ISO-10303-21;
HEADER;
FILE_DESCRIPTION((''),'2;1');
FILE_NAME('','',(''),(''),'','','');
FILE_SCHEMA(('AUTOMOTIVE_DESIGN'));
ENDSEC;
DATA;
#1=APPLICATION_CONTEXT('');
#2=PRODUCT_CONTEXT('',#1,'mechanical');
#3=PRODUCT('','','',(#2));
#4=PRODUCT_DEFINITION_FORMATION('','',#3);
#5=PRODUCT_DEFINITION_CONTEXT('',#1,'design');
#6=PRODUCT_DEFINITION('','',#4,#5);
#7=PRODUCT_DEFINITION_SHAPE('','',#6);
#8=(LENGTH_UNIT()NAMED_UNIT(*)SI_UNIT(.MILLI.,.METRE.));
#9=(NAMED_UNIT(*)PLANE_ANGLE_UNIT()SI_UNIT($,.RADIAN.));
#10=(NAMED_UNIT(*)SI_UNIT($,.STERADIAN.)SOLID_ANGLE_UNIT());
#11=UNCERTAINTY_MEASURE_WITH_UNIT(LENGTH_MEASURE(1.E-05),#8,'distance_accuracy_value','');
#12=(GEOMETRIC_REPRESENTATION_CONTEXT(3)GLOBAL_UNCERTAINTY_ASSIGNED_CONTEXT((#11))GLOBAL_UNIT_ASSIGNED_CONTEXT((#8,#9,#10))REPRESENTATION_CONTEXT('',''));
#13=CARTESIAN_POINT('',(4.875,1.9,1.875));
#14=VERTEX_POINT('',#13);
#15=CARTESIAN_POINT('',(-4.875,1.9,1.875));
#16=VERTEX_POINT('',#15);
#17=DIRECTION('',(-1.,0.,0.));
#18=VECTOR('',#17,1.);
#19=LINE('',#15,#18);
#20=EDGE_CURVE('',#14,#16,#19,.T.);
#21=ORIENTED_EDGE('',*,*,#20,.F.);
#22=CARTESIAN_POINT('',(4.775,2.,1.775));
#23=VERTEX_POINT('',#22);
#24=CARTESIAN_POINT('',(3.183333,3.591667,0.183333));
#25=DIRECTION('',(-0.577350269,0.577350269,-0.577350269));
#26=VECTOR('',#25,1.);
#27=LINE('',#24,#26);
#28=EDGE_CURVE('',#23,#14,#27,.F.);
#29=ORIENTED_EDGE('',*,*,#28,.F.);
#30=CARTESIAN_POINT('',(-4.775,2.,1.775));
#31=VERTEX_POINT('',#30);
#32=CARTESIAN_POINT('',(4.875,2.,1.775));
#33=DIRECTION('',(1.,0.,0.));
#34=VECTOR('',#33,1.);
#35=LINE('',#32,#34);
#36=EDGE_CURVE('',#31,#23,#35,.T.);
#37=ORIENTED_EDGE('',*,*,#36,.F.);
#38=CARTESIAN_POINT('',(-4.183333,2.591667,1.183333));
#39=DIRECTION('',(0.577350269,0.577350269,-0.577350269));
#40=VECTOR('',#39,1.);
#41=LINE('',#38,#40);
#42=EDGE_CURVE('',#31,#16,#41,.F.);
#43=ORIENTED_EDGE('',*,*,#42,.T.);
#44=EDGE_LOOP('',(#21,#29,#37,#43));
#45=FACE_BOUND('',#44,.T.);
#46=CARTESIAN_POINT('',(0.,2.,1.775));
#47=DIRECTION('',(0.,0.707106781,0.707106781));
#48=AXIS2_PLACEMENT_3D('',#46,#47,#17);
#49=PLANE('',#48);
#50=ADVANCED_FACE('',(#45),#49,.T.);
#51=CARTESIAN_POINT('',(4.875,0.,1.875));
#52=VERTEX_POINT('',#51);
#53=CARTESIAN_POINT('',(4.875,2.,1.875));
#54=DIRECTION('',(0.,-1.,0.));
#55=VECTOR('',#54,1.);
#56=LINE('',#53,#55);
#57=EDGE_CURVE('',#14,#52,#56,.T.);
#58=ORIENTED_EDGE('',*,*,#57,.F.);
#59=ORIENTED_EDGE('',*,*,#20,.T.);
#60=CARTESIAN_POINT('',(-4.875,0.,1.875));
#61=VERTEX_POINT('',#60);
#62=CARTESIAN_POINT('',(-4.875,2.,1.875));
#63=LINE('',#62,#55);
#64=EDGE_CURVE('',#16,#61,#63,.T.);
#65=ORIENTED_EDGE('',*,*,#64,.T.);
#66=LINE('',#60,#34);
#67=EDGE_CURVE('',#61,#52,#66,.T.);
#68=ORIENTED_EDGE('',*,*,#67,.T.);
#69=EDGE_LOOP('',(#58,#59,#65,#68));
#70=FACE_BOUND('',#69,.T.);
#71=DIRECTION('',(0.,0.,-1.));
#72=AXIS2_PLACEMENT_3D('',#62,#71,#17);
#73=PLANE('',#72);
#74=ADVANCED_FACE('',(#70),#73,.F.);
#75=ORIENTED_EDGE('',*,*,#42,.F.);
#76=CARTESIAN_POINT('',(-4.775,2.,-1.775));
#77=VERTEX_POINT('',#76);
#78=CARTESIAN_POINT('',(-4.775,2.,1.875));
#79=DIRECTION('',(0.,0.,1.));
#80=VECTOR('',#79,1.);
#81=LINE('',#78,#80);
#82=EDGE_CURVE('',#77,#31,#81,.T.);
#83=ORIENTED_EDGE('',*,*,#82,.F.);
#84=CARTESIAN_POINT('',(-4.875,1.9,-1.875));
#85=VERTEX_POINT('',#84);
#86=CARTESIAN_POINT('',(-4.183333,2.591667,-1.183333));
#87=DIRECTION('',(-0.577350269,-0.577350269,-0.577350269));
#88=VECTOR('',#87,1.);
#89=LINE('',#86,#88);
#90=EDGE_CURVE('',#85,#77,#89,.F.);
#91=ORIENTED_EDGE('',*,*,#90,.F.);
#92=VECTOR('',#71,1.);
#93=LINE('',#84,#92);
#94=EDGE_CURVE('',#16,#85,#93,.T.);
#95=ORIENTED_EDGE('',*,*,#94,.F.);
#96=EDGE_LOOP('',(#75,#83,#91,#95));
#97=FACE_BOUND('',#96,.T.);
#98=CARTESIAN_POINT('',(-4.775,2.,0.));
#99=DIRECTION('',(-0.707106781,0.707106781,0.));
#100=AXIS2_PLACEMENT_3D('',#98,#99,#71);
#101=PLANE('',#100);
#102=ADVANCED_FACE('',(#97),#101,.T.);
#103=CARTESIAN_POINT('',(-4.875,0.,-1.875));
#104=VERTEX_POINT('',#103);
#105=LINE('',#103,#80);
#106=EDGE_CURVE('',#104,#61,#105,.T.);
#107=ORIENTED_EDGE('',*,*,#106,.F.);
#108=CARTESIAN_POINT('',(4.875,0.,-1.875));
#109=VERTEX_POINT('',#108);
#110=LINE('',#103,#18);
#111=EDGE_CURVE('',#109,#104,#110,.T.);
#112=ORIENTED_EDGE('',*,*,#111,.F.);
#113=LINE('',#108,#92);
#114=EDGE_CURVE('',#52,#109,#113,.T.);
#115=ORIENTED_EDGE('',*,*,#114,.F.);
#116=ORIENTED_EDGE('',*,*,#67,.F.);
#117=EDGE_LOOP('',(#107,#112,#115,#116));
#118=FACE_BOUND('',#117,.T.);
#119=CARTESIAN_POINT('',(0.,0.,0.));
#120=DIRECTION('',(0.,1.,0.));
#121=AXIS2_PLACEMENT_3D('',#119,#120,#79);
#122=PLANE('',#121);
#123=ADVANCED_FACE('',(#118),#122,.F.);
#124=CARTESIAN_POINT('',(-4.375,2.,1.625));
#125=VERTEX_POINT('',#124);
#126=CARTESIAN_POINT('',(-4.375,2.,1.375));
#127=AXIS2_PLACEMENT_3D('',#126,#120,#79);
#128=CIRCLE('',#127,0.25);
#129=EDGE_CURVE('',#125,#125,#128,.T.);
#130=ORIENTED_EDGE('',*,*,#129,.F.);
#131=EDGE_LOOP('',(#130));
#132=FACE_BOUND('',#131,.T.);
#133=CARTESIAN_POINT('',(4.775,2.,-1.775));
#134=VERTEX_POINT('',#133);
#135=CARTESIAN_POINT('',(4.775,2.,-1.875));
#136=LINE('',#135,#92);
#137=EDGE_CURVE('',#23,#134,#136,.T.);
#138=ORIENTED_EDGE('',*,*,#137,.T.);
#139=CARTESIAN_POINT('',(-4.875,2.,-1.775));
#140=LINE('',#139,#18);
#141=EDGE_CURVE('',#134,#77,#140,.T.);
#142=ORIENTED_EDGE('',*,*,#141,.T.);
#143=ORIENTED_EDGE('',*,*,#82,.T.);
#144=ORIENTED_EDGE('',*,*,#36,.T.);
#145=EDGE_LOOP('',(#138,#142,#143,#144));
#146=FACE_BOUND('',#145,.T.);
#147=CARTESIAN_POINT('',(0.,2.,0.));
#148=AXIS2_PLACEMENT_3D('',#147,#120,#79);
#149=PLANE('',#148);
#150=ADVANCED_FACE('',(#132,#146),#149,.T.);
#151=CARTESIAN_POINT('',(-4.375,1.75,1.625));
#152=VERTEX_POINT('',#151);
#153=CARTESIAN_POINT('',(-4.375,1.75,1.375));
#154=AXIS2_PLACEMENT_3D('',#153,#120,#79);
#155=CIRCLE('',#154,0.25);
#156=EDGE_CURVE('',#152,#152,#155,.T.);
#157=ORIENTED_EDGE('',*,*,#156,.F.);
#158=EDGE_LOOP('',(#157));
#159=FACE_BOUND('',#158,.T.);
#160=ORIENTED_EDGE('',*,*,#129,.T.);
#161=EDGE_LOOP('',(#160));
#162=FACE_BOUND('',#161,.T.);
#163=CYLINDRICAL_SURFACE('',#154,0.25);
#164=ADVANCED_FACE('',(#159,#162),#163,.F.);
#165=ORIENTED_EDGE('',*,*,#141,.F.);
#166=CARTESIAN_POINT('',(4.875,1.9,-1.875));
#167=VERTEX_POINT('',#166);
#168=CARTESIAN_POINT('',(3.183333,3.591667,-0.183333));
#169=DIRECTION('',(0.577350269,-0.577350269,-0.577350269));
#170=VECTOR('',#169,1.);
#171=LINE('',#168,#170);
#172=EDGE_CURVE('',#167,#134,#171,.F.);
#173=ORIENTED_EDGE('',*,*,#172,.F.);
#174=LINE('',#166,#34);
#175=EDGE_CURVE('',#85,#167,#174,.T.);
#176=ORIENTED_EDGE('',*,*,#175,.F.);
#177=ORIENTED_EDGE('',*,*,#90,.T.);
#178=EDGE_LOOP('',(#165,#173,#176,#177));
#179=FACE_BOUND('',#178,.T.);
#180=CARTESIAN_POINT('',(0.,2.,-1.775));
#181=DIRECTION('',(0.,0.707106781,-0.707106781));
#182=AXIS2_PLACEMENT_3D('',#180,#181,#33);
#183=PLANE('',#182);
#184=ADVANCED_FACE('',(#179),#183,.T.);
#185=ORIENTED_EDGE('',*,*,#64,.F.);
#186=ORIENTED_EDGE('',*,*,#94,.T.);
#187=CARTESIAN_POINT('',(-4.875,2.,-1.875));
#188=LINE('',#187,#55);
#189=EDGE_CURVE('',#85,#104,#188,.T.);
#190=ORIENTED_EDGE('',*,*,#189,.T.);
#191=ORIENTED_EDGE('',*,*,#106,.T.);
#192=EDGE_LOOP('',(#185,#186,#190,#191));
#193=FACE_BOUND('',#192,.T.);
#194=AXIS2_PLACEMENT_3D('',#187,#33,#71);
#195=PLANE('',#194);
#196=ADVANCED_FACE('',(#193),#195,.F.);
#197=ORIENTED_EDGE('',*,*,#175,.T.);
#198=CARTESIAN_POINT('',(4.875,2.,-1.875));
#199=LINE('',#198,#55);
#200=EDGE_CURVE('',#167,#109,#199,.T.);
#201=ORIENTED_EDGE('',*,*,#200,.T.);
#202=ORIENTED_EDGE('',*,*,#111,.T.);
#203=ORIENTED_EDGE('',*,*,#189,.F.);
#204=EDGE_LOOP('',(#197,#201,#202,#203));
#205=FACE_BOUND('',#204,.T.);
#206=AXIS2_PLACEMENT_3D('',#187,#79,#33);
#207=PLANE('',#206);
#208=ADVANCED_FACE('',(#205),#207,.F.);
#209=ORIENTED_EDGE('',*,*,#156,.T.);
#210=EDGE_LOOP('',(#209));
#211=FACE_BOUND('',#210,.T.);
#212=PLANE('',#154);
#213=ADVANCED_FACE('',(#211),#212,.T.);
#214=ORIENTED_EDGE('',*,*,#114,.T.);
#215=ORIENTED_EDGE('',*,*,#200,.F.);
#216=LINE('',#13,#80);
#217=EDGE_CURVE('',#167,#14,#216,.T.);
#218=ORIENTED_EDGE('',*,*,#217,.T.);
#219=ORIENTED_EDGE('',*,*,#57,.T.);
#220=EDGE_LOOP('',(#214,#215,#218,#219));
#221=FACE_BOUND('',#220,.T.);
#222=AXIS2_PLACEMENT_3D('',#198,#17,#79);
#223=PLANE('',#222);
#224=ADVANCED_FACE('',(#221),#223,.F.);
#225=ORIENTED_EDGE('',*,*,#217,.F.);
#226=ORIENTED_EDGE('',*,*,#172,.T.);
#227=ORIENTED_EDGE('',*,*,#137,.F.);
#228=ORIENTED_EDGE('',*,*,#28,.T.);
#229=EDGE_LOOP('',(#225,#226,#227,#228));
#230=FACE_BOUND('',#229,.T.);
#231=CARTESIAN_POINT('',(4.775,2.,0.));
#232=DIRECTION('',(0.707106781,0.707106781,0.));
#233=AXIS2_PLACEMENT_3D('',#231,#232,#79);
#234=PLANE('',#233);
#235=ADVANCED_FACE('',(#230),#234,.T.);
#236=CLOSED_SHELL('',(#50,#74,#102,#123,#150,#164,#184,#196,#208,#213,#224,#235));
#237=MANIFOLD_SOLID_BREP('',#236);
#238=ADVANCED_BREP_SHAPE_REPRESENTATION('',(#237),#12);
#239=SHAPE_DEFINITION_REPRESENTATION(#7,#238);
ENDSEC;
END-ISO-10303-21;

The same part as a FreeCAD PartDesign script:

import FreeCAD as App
import Part
import Sketcher


def edges_at(feature, points):
    """Names of the edges that pass closest to the given points."""
    edges = feature.Shape.Edges
    near = lambda p: min(range(len(edges)), key=lambda i: edges[i].distToShape(Part.Vertex(*p))[0])
    return sorted({f"Edge{near(p) + 1}" for p in points})


def add_polygon(sketch, points):
    """Adds a closed chain of lines whose ends are joined by coincident constraints."""
    first, n = sketch.GeometryCount, len(points)
    for a, b in zip(points, points[1:] + points[:1]):
        sketch.addGeometry(Part.LineSegment(App.Vector(*a, 0), App.Vector(*b, 0)), False)
    for i in range(n):
        sketch.addConstraint(Sketcher.Constraint("Coincident", first + i, 2, first + (i + 1) % n, 1))

doc = App.newDocument("Part")
body = doc.addObject("PartDesign::Body", "Body")

# Sketch on XZ plane
sketch1 = doc.addObject("Sketcher::SketchObject", "Sketch")
body.addObject(sketch1)
sketch1.AttachmentSupport = (doc.XZ_Plane, [""])
sketch1.MapMode = "FlatFace"
add_polygon(sketch1, [(-4.9, -1.9), (-4.9, 1.9), (4.9, 1.9), (4.9, -1.9)])  # lines 0-3
sketch1.addConstraint(Sketcher.Constraint("Vertical", 0))
sketch1.addConstraint(Sketcher.Constraint("Horizontal", 1))
sketch1.addConstraint(Sketcher.Constraint("Vertical", 2))
sketch1.addConstraint(Sketcher.Constraint("Horizontal", 3))
sketch1.addConstraint(Sketcher.Constraint("Symmetric", 0, 2, 2, 2, -1, 1))
sketch1.addConstraint(Sketcher.Constraint("DistanceX", 1, 1, 1, 2, 9.75))
sketch1.addConstraint(Sketcher.Constraint("DistanceY", 0, 1, 0, 2, 3.75))
pad1 = doc.addObject("PartDesign::Pad", "Pad")
body.addObject(pad1)
pad1.Profile = sketch1
pad1.Length = 2
pad1.Reversed = True

# Sketch on XZ plane
sketch2 = doc.addObject("Sketcher::SketchObject", "Sketch001")
body.addObject(sketch2)
sketch2.AttachmentSupport = (doc.XZ_Plane, [""])
sketch2.MapMode = "FlatFace"
sketch2.AttachmentOffset = App.Placement(App.Vector(0, 0, -2), App.Rotation())
sketch2.addGeometry(Part.Circle(App.Vector(-4.38, 1.38, 0), App.Vector(0, 0, 1), 0.25), False)
sketch2.addConstraint(Sketcher.Constraint("Diameter", 0, 0.5))
sketch2.addConstraint(Sketcher.Constraint("DistanceX", 0, 3, -1, 1, 4.375))
sketch2.addConstraint(Sketcher.Constraint("DistanceY", -1, 1, 0, 3, 1.375))
pocket1 = doc.addObject("PartDesign::Pocket", "Pocket")
body.addObject(pocket1)
pocket1.Profile = sketch2
pocket1.Length = 0.25
pocket1.Reversed = True
doc.recompute()

chamfer = doc.addObject("PartDesign::Chamfer", "Chamfer")
body.addObject(chamfer)
chamfer.Base = (pocket1, edges_at(pocket1, [
    (4.875, 2, 0),
    (0, 2, -1.875),
    (-4.875, 2, 0),
    (0, 2, 1.875),
]))
chamfer.Size = 0.1

doc.recompute()
